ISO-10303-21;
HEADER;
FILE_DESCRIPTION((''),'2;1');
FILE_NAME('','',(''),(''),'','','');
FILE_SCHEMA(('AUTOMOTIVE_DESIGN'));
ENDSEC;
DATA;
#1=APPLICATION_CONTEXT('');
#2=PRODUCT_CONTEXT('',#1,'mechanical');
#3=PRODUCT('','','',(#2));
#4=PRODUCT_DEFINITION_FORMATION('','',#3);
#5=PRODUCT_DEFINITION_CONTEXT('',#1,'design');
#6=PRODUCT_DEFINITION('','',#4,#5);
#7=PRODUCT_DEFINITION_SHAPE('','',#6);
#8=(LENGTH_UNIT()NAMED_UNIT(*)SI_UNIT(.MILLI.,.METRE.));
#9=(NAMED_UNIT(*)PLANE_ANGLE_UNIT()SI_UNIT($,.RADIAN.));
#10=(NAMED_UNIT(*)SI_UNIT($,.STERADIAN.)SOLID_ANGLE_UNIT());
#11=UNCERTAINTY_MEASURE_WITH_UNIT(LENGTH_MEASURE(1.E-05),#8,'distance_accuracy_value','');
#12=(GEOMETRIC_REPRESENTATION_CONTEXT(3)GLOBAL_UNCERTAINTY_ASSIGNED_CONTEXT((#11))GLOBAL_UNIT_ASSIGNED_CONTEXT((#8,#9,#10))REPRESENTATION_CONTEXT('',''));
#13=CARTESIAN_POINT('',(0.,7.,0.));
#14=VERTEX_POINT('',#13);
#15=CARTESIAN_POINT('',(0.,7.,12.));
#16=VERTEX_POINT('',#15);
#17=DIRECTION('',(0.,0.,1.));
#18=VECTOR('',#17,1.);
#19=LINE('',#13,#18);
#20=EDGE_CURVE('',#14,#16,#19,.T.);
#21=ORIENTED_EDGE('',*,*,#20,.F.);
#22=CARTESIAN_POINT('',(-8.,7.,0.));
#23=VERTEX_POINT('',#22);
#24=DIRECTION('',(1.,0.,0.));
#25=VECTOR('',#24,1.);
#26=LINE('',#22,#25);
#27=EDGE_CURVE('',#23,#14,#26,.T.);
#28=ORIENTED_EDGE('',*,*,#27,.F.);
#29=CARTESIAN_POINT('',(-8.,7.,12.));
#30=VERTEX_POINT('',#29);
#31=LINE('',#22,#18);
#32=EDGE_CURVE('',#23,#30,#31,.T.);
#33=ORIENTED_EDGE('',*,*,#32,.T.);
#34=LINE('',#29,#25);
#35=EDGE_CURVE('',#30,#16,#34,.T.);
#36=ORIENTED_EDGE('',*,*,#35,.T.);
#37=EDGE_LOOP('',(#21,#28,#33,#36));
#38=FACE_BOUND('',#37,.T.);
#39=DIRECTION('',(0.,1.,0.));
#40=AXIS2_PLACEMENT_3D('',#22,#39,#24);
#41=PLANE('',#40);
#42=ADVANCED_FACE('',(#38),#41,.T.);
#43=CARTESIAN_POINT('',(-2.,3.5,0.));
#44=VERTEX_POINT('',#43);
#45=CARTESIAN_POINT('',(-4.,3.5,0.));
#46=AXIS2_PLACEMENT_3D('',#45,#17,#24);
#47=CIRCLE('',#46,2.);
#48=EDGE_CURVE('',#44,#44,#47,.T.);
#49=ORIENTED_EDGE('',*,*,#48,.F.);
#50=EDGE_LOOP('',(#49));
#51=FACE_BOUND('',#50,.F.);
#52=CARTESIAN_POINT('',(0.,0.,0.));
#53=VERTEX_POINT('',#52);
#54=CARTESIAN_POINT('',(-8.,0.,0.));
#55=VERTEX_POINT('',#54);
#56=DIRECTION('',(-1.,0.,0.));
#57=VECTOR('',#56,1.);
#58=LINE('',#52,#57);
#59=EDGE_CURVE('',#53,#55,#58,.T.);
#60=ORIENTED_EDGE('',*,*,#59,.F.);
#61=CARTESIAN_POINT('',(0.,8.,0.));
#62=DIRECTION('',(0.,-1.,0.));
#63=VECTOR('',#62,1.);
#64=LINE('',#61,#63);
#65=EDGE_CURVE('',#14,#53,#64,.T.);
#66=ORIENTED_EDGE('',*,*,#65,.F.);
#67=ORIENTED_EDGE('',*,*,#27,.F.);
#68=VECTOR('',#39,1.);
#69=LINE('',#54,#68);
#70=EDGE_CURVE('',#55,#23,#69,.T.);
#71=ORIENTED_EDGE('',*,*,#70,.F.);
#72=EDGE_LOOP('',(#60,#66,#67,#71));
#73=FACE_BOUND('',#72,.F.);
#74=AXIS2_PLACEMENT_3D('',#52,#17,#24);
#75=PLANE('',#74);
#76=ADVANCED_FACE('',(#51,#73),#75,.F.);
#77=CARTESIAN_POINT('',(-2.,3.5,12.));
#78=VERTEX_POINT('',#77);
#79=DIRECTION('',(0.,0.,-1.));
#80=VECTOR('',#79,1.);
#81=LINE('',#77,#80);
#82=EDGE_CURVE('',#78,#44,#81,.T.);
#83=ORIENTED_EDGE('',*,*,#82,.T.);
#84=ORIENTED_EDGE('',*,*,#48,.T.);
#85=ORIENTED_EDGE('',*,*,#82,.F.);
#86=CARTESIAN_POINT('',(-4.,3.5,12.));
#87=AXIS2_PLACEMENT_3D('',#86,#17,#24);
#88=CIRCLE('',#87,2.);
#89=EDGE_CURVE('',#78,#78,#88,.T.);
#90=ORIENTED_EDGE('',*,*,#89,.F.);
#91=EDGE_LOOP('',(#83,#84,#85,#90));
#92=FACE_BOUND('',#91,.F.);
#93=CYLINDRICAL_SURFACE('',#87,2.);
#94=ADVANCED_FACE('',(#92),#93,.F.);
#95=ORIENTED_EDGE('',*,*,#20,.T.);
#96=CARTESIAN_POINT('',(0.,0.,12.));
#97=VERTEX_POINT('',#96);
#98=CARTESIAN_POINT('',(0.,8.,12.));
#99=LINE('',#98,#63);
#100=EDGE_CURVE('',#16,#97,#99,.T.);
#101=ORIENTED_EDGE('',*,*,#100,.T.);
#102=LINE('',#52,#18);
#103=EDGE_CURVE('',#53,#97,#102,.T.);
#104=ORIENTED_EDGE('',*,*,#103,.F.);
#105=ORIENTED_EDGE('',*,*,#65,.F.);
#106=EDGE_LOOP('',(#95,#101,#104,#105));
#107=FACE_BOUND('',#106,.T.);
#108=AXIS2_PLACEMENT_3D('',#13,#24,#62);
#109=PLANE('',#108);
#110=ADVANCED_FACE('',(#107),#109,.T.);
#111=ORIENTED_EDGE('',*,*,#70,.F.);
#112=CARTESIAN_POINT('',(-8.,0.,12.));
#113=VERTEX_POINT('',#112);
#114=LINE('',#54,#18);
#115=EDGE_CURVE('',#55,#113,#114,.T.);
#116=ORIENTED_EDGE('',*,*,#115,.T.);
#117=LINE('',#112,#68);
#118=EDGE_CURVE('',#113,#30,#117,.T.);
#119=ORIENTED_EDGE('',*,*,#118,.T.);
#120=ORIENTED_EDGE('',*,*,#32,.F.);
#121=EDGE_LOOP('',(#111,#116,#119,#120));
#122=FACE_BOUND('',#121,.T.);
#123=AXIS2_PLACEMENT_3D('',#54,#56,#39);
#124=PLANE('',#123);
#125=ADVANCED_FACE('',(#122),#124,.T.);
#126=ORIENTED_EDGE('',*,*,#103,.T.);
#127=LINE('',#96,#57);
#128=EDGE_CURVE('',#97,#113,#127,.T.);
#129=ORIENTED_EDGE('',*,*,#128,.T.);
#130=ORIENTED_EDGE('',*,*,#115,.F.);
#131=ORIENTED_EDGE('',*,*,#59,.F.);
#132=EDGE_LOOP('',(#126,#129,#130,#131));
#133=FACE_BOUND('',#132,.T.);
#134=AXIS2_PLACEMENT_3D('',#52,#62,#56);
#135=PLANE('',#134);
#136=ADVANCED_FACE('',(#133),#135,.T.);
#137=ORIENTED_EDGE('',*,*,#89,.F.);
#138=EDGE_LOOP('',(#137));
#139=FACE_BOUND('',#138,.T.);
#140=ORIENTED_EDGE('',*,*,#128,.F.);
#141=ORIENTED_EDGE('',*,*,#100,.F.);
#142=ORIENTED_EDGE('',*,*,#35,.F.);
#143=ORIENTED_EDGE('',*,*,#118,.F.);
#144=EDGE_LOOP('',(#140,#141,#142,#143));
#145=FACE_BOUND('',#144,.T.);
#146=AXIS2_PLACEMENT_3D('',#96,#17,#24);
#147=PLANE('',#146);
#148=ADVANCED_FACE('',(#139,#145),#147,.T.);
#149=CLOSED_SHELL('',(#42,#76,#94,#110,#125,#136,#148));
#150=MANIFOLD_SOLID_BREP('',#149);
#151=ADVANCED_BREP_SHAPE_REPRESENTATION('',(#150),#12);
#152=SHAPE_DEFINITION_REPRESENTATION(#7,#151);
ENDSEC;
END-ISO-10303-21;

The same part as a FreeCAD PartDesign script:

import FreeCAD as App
import Part
import Sketcher
Q = App.Units.Quantity


def add_polygon(sketch, points):
    """Adds a closed chain of lines whose ends are joined by coincident constraints."""
    first, n = sketch.GeometryCount, len(points)
    for a, b in zip(points, points[1:] + points[:1]):
        sketch.addGeometry(Part.LineSegment(App.Vector(*a, 0), App.Vector(*b, 0)), False)
    for i in range(n):
        sketch.addConstraint(Sketcher.Constraint("Coincident", first + i, 2, first + (i + 1) % n, 1))

doc = App.newDocument("Part")
body = doc.addObject("PartDesign::Body", "Body")

sketch1 = body.newObject("Sketcher::SketchObject", "Sketch")
sketch1.AttachmentSupport = (doc.getObject("XY_Plane"), [""])
sketch1.MapMode = "FlatFace"
add_polygon(sketch1, [(-8, 0), (0, 0), (0, 7), (-8, 7)])
sketch1.addConstraint([
    Sketcher.Constraint("Horizontal", 0),
    Sketcher.Constraint("Vertical", 1),
    Sketcher.Constraint("Horizontal", 2),
    Sketcher.Constraint("Vertical", 3),
    Sketcher.Constraint("Coincident", 0, 2, -1, 1),
    Sketcher.Constraint("DistanceX", 0, 1, 0, 2, Q("8 mm")),
    Sketcher.Constraint("DistanceY", 1, 1, 1, 2, Q("7 mm")),
])
pad1 = body.newObject("PartDesign::Pad", "Pad")
pad1.Profile = sketch1
pad1.Length = 12

sketch2 = body.newObject("Sketcher::SketchObject", "Sketch001")
sketch2.AttachmentSupport = (doc.getObject("XY_Plane"), [""])
sketch2.MapMode = "FlatFace"
sketch2.AttachmentOffset = App.Placement(App.Vector(0, 0, 12), App.Rotation())
sketch2.addGeometry(Part.Circle(App.Vector(-4, 3.5, 0), App.Vector(0, 0, 1), 2), False)
sketch2.addConstraint([
    Sketcher.Constraint("Diameter", 0, Q("4 mm")),
    Sketcher.Constraint("DistanceX", 0, 3, -1, 1, Q("4 mm")),
    Sketcher.Constraint("DistanceY", -1, 1, 0, 3, Q("3.5 mm")),
])
pocket1 = body.newObject("PartDesign::Pocket", "Pocket")
pocket1.Profile = sketch2
pocket1.Type = "ThroughAll"

doc.recompute()
